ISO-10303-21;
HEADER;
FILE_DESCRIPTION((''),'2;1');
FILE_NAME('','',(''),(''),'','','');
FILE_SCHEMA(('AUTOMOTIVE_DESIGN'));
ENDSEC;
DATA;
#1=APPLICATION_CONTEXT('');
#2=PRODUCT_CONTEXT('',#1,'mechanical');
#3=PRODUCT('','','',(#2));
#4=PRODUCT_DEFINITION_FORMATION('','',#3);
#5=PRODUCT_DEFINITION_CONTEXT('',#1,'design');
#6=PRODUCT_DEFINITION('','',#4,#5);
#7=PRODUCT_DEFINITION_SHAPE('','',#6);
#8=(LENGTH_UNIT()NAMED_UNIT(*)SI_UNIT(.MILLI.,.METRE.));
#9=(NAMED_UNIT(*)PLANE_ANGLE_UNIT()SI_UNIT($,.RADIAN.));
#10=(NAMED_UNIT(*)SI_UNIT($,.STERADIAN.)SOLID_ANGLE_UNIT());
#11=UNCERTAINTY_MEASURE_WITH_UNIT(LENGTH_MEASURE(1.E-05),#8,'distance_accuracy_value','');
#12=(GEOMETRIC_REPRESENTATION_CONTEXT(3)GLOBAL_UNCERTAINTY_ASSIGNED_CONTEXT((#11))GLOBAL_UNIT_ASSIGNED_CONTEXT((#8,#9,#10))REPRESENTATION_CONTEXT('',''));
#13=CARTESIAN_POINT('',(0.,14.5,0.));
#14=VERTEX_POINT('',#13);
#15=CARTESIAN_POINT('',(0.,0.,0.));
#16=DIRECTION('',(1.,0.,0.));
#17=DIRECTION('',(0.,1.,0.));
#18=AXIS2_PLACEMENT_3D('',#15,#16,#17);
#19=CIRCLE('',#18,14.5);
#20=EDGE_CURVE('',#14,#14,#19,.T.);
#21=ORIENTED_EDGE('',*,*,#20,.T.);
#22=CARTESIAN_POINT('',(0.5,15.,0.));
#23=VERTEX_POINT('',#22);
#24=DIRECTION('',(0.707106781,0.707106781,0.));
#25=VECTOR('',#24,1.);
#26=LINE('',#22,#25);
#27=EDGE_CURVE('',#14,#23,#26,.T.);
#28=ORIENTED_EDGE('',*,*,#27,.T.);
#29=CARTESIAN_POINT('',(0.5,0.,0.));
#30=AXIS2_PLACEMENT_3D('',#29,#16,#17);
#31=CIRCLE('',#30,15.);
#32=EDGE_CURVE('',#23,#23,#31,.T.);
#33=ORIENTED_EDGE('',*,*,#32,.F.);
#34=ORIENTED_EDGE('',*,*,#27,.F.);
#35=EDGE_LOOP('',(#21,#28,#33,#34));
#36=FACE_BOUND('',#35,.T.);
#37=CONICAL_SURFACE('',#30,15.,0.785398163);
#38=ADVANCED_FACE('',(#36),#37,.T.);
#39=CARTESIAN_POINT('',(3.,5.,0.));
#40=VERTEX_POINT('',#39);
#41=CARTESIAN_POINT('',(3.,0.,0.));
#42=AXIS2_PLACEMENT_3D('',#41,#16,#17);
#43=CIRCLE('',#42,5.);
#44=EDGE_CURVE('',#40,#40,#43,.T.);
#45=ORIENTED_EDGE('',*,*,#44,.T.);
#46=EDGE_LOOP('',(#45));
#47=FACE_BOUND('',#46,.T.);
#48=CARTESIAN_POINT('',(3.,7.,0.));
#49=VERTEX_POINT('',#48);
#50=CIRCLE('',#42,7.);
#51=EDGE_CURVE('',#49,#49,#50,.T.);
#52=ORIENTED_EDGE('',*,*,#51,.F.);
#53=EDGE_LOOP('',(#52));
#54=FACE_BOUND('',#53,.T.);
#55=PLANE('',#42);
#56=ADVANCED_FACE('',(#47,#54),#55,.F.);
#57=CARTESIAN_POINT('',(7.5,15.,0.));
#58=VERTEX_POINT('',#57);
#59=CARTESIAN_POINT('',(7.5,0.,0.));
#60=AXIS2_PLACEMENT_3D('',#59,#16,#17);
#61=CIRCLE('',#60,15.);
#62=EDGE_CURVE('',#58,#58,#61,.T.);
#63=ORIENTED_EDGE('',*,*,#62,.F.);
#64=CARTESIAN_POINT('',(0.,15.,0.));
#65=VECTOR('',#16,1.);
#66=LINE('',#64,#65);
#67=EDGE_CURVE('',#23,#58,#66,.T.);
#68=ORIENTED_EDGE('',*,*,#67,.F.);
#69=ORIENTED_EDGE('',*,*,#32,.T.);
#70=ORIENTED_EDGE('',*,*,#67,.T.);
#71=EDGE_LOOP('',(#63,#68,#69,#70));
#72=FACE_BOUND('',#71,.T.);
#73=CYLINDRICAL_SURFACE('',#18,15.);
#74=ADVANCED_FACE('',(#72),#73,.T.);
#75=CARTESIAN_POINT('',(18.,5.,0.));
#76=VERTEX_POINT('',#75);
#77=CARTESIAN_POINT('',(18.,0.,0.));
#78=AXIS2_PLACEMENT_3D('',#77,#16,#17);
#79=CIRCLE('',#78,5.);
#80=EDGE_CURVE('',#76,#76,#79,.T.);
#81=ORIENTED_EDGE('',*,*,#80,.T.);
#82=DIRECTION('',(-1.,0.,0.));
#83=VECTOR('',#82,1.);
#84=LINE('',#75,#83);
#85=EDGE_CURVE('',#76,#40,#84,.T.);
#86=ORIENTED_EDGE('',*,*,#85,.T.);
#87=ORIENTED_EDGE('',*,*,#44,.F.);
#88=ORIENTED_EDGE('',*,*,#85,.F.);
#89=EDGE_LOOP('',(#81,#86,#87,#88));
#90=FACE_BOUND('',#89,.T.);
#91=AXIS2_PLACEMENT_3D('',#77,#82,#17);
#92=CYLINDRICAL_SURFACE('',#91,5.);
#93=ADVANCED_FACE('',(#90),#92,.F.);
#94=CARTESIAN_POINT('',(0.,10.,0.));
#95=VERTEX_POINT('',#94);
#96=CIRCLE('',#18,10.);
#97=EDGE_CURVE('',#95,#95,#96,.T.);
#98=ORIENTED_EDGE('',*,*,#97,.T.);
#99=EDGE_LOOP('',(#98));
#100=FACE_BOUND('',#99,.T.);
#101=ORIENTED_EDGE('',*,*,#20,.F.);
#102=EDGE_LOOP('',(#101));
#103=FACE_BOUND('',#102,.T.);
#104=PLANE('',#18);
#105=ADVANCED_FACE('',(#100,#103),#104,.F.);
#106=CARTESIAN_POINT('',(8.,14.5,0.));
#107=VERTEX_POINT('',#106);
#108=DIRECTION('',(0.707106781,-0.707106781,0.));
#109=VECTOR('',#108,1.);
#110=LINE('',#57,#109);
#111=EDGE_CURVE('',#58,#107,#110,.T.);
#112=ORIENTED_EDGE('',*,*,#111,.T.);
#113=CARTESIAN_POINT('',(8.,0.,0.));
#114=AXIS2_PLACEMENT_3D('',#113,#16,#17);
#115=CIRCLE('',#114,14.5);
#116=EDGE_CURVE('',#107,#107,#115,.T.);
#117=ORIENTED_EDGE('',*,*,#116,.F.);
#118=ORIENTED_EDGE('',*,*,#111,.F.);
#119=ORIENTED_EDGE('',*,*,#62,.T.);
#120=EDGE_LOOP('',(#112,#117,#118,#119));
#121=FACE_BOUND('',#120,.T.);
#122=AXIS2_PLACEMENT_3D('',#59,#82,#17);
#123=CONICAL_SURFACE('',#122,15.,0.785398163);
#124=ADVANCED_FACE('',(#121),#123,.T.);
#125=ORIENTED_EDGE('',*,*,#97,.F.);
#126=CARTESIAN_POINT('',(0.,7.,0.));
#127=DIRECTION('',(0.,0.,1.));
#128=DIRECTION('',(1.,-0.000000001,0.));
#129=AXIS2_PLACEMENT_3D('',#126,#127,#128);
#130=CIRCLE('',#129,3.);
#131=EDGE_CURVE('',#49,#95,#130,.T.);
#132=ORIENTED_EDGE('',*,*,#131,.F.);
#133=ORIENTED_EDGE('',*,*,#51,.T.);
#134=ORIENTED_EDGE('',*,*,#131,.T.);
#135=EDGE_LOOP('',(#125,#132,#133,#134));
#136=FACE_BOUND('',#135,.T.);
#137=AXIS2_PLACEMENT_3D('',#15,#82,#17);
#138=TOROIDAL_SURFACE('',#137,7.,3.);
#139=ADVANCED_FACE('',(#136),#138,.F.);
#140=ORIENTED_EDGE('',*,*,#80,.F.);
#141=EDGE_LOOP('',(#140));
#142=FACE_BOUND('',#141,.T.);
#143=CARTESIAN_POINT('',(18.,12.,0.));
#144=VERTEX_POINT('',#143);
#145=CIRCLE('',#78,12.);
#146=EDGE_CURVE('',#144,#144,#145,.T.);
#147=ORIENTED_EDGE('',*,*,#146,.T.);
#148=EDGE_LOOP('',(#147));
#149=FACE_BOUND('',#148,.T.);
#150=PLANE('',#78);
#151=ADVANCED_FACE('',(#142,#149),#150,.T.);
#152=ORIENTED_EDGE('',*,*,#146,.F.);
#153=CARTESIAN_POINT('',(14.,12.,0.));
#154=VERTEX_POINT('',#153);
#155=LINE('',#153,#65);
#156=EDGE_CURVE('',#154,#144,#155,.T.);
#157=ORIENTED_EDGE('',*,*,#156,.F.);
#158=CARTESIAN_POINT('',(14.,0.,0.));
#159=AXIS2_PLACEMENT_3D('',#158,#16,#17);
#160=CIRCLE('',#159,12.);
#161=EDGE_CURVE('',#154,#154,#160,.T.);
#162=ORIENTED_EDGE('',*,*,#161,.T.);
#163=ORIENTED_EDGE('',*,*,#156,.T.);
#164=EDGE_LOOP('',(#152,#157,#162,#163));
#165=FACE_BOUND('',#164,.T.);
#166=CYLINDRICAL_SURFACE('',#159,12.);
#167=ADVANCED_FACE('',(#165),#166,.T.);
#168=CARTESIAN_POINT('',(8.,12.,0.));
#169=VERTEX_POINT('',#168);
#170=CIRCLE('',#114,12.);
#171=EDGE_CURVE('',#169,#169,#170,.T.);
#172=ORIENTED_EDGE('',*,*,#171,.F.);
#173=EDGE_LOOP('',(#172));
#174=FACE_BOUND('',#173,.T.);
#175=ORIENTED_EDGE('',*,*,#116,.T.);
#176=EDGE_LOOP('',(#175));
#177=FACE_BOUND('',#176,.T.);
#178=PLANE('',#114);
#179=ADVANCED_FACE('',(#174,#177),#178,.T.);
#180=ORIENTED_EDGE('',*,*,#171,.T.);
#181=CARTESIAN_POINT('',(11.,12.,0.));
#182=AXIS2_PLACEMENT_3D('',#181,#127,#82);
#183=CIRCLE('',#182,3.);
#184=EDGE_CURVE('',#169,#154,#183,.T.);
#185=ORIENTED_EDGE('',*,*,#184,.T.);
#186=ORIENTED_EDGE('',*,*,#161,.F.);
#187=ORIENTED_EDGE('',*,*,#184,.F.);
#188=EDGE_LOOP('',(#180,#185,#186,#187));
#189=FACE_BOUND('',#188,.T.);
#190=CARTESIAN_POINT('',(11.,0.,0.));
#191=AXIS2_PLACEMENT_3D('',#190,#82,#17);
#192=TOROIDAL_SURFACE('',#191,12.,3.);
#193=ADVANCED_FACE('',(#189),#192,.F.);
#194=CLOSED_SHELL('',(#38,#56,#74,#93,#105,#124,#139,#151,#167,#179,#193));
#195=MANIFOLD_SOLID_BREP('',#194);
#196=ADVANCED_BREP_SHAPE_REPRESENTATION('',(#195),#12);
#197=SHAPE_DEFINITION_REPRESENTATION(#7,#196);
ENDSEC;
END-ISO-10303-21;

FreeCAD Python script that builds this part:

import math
import FreeCAD as App
import Part
import Sketcher

V = App.Vector
Q = App.Units.Quantity


def edges_at(feature, points):
    """Names of the edges that pass closest to the given points."""
    edges = feature.Shape.Edges
    near = lambda p: min(range(len(edges)), key=lambda i: edges[i].distToShape(Part.Vertex(*p))[0])
    return sorted({f"Edge{near(p) + 1}" for p in points})

doc = App.newDocument("Part")
params = doc.addObject("Spreadsheet::Sheet", "Params")
for row, (alias, value) in enumerate([
    ("sketch1_radius", "3 mm"),
    ("sketch1_width", "4 mm"),
    ("sketch1_width2", "8 mm"),
    ("sketch1_height", "7 mm"),
    ("sketch1_height2", "3 mm"),
    ("revolution_angle", "360 deg"),
    ("chamfer_size", "0.5 mm"),
], start=1):
    params.set(f"A{row}", alias)
    params.set(f"B{row}", "=" + value)
    params.setAlias(f"B{row}", alias)

body = doc.addObject("PartDesign::Body", "Body")

sketch1 = body.newObject("Sketcher::SketchObject", "Sketch")
sketch1.AttachmentSupport = (doc.getObject("XY_Plane"), [""])
sketch1.MapMode = "FlatFace"
sketch1.addGeometry(Part.LineSegment(V(18, 5, 0), V(18, 12, 0)), False)
sketch1.addGeometry(Part.LineSegment(V(18, 12, 0), V(14, 12, 0)), False)
sketch1.addGeometry(Part.ArcOfCircle(Part.Circle(V(11, 12, 0), V(0, 0, 1), 3), math.radians(180), math.radians(360)), False)
sketch1.addGeometry(Part.LineSegment(V(8, 12, 0), V(8, 15, 0)), False)
sketch1.addGeometry(Part.LineSegment(V(8, 15, 0), V(0, 15, 0)), False)
sketch1.addGeometry(Part.LineSegment(V(0, 15, 0), V(0, 10, 0)), False)
sketch1.addGeometry(Part.ArcOfCircle(Part.Circle(V(0, 7, 0), V(0, 0, 1), 3), math.radians(0), math.radians(90)), False)
sketch1.addGeometry(Part.LineSegment(V(3, 7, 0), V(3, 5, 0)), False)
sketch1.addGeometry(Part.LineSegment(V(3, 5, 0), V(18, 5, 0)), False)
sketch1.addConstraint(Sketcher.Constraint("Coincident", 0, 2, 1, 1))
sketch1.addConstraint(Sketcher.Constraint("Coincident", 1, 2, 2, 2))
sketch1.addConstraint(Sketcher.Constraint("Tangent", 2, 1, 3, 1))
sketch1.addConstraint(Sketcher.Constraint("Coincident", 3, 2, 4, 1))
sketch1.addConstraint(Sketcher.Constraint("Coincident", 4, 2, 5, 1))
sketch1.addConstraint(Sketcher.Constraint("Coincident", 5, 2, 6, 2))
sketch1.addConstraint(Sketcher.Constraint("Tangent", 6, 1, 7, 1))
sketch1.addConstraint(Sketcher.Constraint("Coincident", 7, 2, 8, 1))
sketch1.addConstraint(Sketcher.Constraint("Coincident", 8, 2, 0, 1))
sketch1.addConstraint(Sketcher.Constraint("Vertical", 0))
sketch1.addConstraint(Sketcher.Constraint("Horizontal", 1))
sketch1.addConstraint(Sketcher.Constraint("Vertical", 3))
sketch1.addConstraint(Sketcher.Constraint("Horizontal", 4))
sketch1.addConstraint(Sketcher.Constraint("Vertical", 5))
sketch1.addConstraint(Sketcher.Constraint("Vertical", 7))
sketch1.addConstraint(Sketcher.Constraint("Horizontal", 8))
sketch1.addConstraint(Sketcher.Constraint("Equal", 2, 6))
sketch1.addConstraint(Sketcher.Constraint("PointOnObject", 6, 3, -2))
sketch1.addConstraint(Sketcher.Constraint("PointOnObject", 4, 2, -2))
sketch1.addConstraint(Sketcher.Constraint("Horizontal", 2, 3, 0, 2))
sketch1.addConstraint(Sketcher.Constraint("Radius", 2, Q("3 mm")))
sketch1.addConstraint(Sketcher.Constraint("DistanceX", 1, 2, 1, 1, Q("4 mm")))
sketch1.addConstraint(Sketcher.Constraint("DistanceX", 4, 2, 4, 1, Q("8 mm")))
sketch1.addConstraint(Sketcher.Constraint("DistanceY", 0, 1, 0, 2, Q("7 mm")))
sketch1.addConstraint(Sketcher.Constraint("DistanceY", 3, 1, 3, 2, Q("3 mm")))
sketch1.addConstraint(Sketcher.Constraint("DistanceY", 5, 2, 5, 1, Q("5 mm")))
sketch1.addConstraint(Sketcher.Constraint("DistanceY", -1, 1, 2, 3, Q("12 mm")))
sketch1.setExpression("Constraints[20]", "Params.sketch1_radius")
sketch1.setExpression("Constraints[21]", "Params.sketch1_width")
sketch1.setExpression("Constraints[22]", "Params.sketch1_width2")
sketch1.setExpression("Constraints[23]", "Params.sketch1_height")
sketch1.setExpression("Constraints[24]", "Params.sketch1_height2")
revolution = body.newObject("PartDesign::Revolution", "Revolution")
revolution.Profile = sketch1
revolution.ReferenceAxis = (sketch1, ["H_Axis"])
revolution.setExpression("Angle", "Params.revolution_angle")
doc.recompute()

chamfer = body.newObject("PartDesign::Chamfer", "Chamfer")
chamfer.Base = (revolution, edges_at(revolution, [(0, -15, 0), (8, -15, 0)]))
chamfer.setExpression("Size", "Params.chamfer_size")

doc.recompute()
